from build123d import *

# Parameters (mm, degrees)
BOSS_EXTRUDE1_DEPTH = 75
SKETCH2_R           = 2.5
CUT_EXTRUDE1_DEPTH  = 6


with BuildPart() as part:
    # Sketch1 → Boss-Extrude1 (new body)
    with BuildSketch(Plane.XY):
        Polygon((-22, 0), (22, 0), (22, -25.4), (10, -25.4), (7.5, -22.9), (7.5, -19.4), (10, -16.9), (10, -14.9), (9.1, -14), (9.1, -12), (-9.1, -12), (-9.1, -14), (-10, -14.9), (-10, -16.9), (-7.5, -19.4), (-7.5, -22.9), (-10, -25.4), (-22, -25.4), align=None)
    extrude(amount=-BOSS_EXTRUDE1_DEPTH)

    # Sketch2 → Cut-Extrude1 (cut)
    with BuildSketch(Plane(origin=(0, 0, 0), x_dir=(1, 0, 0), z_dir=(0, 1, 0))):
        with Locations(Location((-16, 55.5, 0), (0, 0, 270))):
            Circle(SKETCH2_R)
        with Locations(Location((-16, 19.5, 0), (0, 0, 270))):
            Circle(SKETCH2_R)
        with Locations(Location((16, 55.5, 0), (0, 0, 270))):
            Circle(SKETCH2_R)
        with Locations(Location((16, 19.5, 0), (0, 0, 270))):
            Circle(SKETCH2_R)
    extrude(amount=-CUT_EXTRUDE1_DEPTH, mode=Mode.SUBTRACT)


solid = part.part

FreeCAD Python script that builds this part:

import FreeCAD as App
import Part
import Sketcher
Q = App.Units.Quantity


def add_polygon(sketch, points):
    """Adds a closed chain of lines whose ends are joined by coincident constraints."""
    first, n = sketch.GeometryCount, len(points)
    for a, b in zip(points, points[1:] + points[:1]):
        sketch.addGeometry(Part.LineSegment(App.Vector(*a, 0), App.Vector(*b, 0)), False)
    for i in range(n):
        sketch.addConstraint(Sketcher.Constraint("Coincident", first + i, 2, first + (i + 1) % n, 1))

doc = App.newDocument("Part")
body = doc.addObject("PartDesign::Body", "Body")

# Sketch on XY plane
sketch1 = doc.addObject("Sketcher::SketchObject", "Sketch")
body.addObject(sketch1)
sketch1.AttachmentSupport = (doc.XY_Plane, [""])
sketch1.MapMode = "FlatFace"
add_polygon(sketch1, [(22, 0), (-22, 0), (-22, -25.4), (-10, -25.4), (-7.5, -22.9), (-7.5, -19.4), (-10, -16.9), (-10, -14.9), (-9.1, -14), (-9.1, -12), (9.1, -12), (9.1, -14), (10, -14.9), (10, -16.9), (7.5, -19.4), (7.5, -22.9), (10, -25.4), (22, -25.4)])  # lines 0-17
sketch1.addConstraint([
    Sketcher.Constraint("Horizontal", 0),
    Sketcher.Constraint("Vertical", 1),
    Sketcher.Constraint("Horizontal", 2),
    Sketcher.Constraint("Vertical", 4),
    Sketcher.Constraint("Vertical", 6),
    Sketcher.Constraint("Vertical", 8),
    Sketcher.Constraint("Horizontal", 9),
    Sketcher.Constraint("Vertical", 10),
    Sketcher.Constraint("Vertical", 12),
    Sketcher.Constraint("Vertical", 14),
    Sketcher.Constraint("Horizontal", 16),
    Sketcher.Constraint("Vertical", 17),
    Sketcher.Constraint("Symmetric", 0, 2, 17, 2, -1, 1),
    Sketcher.Constraint("Symmetric", 7, 2, 10, 2, -2),
    Sketcher.Constraint("Symmetric", 6, 2, 11, 2, -2),
    Sketcher.Constraint("Symmetric", 4, 2, 13, 2, -2),
    Sketcher.Constraint("Symmetric", 2, 2, 15, 2, -2),
    Sketcher.Constraint("Perpendicular", 3, 5),
    Sketcher.Constraint("Perpendicular", 5, 7),
    Sketcher.Constraint("Perpendicular", 7, 11),
    Sketcher.Constraint("Perpendicular", 11, 13),
    Sketcher.Constraint("Perpendicular", 13, 15),
    Sketcher.Constraint("Vertical", 2, 2, 5, 2),
    Sketcher.Constraint("Equal", 6, 8),
    Sketcher.Constraint("DistanceX", 0, 2, 0, 1, Q("44 mm")),
    Sketcher.Constraint("DistanceX", 2, 1, 2, 2, Q("12 mm")),
    Sketcher.Constraint("DistanceY", 6, 1, 6, 2, Q("2 mm")),
    Sketcher.Constraint("DistanceX", 9, 1, 9, 2, Q("18.2 mm")),
    Sketcher.Constraint("DistanceY", 1, 2, 1, 1, Q("25.4 mm")),
    Sketcher.Constraint("DistanceY", 4, 1, 4, 2, Q("3.5 mm")),
    Sketcher.Constraint("DistanceY", 7, 2, -1, 1, Q("14 mm")),
])
pad1 = doc.addObject("PartDesign::Pad", "Pad")
body.addObject(pad1)
pad1.Profile = sketch1
pad1.Length = 75
pad1.Reversed = True

# Sketch on XZ plane
sketch2 = doc.addObject("Sketcher::SketchObject", "Sketch001")
body.addObject(sketch2)
sketch2.AttachmentSupport = (doc.XZ_Plane, [""])
sketch2.MapMode = "FlatFace"
sketch2.addGeometry([
    Part.Circle(App.Vector(-16, -55.5, 0), App.Vector(0, 0, 1), 2.5),
    Part.Circle(App.Vector(-16, -19.5, 0), App.Vector(0, 0, 1), 2.5),
    Part.Circle(App.Vector(16, -55.5, 0), App.Vector(0, 0, 1), 2.5),
    Part.Circle(App.Vector(16, -19.5, 0), App.Vector(0, 0, 1), 2.5),
], False)
sketch2.addConstraint([
    Sketcher.Constraint("Equal", 0, 1),
    Sketcher.Constraint("Equal", 1, 2),
    Sketcher.Constraint("Equal", 2, 3),
    Sketcher.Constraint("Symmetric", 0, 3, 2, 3, -2),
    Sketcher.Constraint("Symmetric", 1, 3, 3, 3, -2),
    Sketcher.Constraint("Vertical", 0, 3, 1, 3),
    Sketcher.Constraint("Diameter", 0, Q("5 mm")),
    Sketcher.Constraint("DistanceX", 0, 3, -1, 1, Q("16 mm")),
    Sketcher.Constraint("DistanceY", 0, 3, 1, 3, Q("36 mm")),
    Sketcher.Constraint("DistanceY", 0, 3, -1, 1, Q("55.5 mm")),
])
pocket1 = doc.addObject("PartDesign::Pocket", "Pocket")
body.addObject(pocket1)
pocket1.Profile = sketch2
pocket1.Length = 6
pocket1.Reversed = True

doc.recompute()
